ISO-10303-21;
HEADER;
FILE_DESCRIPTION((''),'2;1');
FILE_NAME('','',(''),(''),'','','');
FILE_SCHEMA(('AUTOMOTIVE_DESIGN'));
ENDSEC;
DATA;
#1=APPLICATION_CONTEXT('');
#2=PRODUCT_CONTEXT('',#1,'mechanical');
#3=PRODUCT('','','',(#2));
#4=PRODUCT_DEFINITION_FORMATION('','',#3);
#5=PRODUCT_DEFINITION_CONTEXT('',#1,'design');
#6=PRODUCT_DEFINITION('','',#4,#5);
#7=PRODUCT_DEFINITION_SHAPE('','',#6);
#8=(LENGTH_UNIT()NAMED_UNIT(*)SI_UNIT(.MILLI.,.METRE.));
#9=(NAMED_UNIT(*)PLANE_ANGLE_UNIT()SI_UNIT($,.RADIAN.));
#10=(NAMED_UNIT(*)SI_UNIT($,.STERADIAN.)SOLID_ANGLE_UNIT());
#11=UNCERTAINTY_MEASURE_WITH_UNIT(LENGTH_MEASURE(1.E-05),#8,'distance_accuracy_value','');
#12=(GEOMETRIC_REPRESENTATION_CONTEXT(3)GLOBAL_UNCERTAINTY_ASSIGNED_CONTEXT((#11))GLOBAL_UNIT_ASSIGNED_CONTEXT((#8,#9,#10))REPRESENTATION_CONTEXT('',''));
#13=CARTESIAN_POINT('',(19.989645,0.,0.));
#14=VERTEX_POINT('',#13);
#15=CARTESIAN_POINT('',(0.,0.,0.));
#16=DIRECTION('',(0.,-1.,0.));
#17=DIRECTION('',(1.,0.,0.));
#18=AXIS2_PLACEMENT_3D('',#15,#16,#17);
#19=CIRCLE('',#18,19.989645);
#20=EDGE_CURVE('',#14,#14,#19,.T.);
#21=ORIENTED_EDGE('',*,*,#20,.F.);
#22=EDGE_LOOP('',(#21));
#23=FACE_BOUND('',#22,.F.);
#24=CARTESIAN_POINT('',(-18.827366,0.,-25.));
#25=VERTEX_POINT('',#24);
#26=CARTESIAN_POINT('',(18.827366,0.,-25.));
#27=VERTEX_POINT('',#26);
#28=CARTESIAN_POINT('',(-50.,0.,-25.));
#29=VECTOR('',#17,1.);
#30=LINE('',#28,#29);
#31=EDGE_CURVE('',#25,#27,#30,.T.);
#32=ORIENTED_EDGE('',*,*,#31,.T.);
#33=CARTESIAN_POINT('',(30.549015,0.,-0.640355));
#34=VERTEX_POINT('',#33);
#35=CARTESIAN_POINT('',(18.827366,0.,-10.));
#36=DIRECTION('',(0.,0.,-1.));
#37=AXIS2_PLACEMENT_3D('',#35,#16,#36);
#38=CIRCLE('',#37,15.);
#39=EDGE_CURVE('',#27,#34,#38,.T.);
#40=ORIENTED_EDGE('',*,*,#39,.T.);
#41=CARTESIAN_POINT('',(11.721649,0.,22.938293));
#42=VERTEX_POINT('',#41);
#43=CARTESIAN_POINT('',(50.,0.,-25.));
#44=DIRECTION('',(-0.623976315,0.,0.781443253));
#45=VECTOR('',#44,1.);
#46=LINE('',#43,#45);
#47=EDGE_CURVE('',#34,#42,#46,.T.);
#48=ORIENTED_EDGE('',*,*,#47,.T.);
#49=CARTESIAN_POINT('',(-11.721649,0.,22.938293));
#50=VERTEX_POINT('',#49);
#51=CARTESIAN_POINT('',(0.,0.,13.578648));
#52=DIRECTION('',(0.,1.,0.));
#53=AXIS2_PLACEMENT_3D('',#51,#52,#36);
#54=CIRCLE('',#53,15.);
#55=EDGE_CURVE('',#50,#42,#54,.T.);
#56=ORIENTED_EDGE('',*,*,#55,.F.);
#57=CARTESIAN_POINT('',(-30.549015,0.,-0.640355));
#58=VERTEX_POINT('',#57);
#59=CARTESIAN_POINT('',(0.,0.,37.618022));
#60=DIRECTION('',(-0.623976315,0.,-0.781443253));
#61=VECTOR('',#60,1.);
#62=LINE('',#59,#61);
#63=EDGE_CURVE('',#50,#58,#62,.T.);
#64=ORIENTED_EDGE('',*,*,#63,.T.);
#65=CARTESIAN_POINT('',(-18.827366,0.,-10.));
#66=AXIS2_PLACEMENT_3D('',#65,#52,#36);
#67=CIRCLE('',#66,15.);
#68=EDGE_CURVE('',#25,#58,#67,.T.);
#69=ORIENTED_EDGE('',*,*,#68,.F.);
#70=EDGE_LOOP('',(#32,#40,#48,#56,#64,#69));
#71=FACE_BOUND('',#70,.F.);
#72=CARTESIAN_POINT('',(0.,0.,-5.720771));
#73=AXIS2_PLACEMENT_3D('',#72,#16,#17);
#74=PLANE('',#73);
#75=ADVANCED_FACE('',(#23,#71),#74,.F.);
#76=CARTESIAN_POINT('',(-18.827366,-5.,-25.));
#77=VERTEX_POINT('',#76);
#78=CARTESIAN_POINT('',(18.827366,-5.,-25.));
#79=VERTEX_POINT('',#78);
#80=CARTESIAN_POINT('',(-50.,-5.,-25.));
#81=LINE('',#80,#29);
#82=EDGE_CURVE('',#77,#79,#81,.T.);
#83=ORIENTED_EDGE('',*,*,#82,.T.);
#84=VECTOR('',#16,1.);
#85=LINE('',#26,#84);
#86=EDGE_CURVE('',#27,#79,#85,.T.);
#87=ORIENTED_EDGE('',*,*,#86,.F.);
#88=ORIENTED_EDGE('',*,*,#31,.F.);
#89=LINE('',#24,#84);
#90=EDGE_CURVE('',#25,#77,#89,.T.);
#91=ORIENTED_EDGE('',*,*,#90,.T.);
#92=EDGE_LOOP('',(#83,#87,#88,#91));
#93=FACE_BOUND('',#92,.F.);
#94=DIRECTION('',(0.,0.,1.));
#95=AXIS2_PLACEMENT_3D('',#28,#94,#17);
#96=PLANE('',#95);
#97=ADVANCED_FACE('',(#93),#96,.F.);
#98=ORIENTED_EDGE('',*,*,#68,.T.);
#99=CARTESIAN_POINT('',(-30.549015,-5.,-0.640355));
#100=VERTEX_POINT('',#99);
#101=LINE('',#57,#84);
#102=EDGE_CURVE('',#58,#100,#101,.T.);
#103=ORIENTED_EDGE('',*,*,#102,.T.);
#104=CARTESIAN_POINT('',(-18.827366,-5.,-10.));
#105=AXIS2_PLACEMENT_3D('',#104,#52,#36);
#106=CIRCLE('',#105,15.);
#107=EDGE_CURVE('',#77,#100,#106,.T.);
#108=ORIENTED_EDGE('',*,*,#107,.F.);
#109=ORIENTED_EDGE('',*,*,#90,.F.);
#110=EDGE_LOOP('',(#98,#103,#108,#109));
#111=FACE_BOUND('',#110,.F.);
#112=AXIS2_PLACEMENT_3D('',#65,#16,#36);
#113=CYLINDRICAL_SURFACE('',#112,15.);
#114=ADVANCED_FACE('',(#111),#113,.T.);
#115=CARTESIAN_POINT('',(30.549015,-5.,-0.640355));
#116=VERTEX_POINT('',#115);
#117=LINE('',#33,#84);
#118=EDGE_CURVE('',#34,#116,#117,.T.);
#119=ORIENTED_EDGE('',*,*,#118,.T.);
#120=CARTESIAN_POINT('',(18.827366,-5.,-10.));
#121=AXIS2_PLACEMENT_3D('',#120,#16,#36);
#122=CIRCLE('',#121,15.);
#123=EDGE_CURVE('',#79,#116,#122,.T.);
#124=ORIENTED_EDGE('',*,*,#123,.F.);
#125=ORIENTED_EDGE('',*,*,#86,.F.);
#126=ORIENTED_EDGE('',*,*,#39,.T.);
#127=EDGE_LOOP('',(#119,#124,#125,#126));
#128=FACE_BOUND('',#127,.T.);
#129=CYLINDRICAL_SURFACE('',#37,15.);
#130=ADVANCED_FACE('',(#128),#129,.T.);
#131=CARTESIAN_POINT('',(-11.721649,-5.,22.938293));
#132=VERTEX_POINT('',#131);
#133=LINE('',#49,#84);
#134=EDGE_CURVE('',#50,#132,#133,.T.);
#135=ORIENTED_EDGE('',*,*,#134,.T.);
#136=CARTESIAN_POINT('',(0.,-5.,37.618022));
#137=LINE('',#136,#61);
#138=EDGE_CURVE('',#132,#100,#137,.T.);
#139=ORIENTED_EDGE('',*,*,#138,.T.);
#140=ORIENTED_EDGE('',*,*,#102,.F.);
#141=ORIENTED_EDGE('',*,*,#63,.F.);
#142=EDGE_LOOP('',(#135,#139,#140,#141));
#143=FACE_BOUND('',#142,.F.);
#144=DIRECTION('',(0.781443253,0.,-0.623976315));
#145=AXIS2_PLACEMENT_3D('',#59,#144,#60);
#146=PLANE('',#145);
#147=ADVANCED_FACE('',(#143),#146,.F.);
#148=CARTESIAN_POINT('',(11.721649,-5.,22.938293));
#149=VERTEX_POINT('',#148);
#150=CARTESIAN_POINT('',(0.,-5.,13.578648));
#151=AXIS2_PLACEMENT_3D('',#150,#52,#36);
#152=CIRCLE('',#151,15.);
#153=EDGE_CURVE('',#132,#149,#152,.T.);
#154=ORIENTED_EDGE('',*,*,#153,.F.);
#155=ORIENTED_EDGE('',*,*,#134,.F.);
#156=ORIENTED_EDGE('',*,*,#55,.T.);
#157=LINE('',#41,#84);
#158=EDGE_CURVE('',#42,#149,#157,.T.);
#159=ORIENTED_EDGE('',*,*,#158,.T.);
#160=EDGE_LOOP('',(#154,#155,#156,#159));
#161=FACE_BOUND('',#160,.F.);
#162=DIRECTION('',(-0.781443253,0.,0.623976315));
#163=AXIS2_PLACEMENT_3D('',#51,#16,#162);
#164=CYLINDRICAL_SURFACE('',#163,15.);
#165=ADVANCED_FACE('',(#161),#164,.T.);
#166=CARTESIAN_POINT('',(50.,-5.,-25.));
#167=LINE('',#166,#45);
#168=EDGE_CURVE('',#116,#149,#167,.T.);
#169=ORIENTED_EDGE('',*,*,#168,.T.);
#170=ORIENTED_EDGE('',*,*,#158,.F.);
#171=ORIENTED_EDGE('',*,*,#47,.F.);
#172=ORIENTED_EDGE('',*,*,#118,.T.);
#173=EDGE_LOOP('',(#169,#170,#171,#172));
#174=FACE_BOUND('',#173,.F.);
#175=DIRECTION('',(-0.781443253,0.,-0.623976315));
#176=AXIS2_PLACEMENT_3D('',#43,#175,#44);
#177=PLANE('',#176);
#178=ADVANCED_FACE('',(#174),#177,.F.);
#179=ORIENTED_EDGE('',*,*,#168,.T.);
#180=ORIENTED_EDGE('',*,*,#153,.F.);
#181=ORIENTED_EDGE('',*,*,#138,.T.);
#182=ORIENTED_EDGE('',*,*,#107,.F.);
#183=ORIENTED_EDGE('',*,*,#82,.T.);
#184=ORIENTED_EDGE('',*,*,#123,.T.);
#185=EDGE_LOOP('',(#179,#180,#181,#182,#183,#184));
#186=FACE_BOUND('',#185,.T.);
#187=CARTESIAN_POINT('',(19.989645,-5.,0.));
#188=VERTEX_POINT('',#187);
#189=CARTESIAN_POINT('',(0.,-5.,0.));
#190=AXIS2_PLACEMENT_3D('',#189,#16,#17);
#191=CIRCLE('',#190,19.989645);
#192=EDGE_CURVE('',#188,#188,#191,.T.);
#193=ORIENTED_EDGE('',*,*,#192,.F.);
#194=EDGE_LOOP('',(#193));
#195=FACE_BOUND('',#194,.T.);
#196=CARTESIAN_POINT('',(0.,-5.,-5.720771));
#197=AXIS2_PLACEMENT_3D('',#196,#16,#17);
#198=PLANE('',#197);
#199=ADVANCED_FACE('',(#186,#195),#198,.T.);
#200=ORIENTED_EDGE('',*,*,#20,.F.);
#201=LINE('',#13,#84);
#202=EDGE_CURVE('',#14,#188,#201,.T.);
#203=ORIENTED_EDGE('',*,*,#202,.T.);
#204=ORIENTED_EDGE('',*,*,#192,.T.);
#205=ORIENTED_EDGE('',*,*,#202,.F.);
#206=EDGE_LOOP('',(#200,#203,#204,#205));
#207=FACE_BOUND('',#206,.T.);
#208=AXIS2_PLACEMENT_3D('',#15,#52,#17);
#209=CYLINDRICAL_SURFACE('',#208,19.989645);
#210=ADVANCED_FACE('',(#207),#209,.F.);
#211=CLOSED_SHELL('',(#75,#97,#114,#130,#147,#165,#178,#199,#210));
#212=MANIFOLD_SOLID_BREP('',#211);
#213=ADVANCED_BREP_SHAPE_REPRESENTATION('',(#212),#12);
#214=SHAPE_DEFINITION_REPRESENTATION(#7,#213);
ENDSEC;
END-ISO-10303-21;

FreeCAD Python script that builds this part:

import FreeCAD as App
import Part
import Sketcher

V = App.Vector


def edges_at(feature, points):
    """Names of the edges that pass closest to the given points."""
    edges = feature.Shape.Edges
    near = lambda p: min(range(len(edges)), key=lambda i: edges[i].distToShape(Part.Vertex(*p))[0])
    return sorted({f"Edge{near(p) + 1}" for p in points})


def add_polygon(sketch, points):
    """Adds a closed chain of lines whose ends are joined by coincident constraints."""
    first, n = sketch.GeometryCount, len(points)
    for a, b in zip(points, points[1:] + points[:1]):
        sketch.addGeometry(Part.LineSegment(App.Vector(*a, 0), App.Vector(*b, 0)), False)
    for i in range(n):
        sketch.addConstraint(Sketcher.Constraint("Coincident", first + i, 2, first + (i + 1) % n, 1))

doc = App.newDocument("Part")
body = doc.addObject("PartDesign::Body", "Body")

# Sketch on XZ plane
sketch1 = body.newObject("Sketcher::SketchObject", "Sketch")
sketch1.AttachmentSupport = (doc.getObject("XZ_Plane"), [""])
sketch1.MapMode = "FlatFace"
add_polygon(sketch1, [(-50, -25), (50, -25), (0, 38)])  # lines 0-2
sketch1.addGeometry(Part.Circle(V(0, 0, 0), V(0, 0, 1), 20), False)  # 3
sketch1.addConstraint([
    Sketcher.Constraint("Horizontal", 0),
    Sketcher.Constraint("Coincident", 3, 3, -1, 1),
    Sketcher.Constraint("PointOnObject", 1, 2, -2),
    Sketcher.Constraint("Equal", 1, 2),
    Sketcher.Constraint("DistanceX", 0, 1, 0, 2, 100.0),
    Sketcher.Constraint("DistanceY", 0, 2, -1, 1, 25.0),
    Sketcher.Constraint("Diameter", 3, 39.97929),
    Sketcher.Constraint("Distance", 1, 80.131247),
])
pad1 = body.newObject("PartDesign::Pad", "Pad")
pad1.Profile = sketch1
pad1.Length = 5
doc.recompute()

fillet = body.newObject("PartDesign::Fillet", "Fillet")
fillet.Base = (pad1, edges_at(pad1, [(0, -2.5, 37.618), (-50, -2.5, -25), (50, -2.5, -25)]))
fillet.Radius = 15

doc.recompute()
